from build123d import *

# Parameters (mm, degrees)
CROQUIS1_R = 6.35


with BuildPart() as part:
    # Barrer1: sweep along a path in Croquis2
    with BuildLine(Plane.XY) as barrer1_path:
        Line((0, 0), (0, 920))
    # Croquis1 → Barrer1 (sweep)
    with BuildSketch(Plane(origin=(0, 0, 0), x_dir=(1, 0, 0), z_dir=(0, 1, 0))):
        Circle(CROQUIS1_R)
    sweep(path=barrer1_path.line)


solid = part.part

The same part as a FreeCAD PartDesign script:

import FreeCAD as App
import Part
import Sketcher

V = App.Vector
Q = App.Units.Quantity

doc = App.newDocument("Part")
body = doc.addObject("PartDesign::Body", "Body")

# Sketch on XZ plane
sketch1 = body.newObject("Sketcher::SketchObject", "Sketch")
sketch1.AttachmentSupport = (doc.getObject("XZ_Plane"), [""])
sketch1.MapMode = "FlatFace"
sketch1.addGeometry(Part.Circle(V(0, 0, 0), V(0, 0, 1), 6), False)
sketch1.addConstraint([
    Sketcher.Constraint("Coincident", 0, 3, -1, 1),
    Sketcher.Constraint("Diameter", 0, Q("12.7 mm")),
])

# Sketch on XY plane
sketch2 = body.newObject("Sketcher::SketchObject", "Sketch001")
sketch2.AttachmentSupport = (doc.getObject("XY_Plane"), [""])
sketch2.MapMode = "FlatFace"
sketch2.addGeometry(Part.LineSegment(V(0, 0, 0), V(0, 920, 0)), False)
sketch2.addConstraint([
    Sketcher.Constraint("Vertical", 0),
    Sketcher.Constraint("Coincident", 0, 1, -1, 1),
    Sketcher.Constraint("DistanceY", 0, 1, 0, 2, Q("920 mm")),
])
doc.recompute()

additivepipe = body.newObject("PartDesign::AdditivePipe", "AdditivePipe")
additivepipe.Profile = sketch1
additivepipe.Spine = (sketch2, ["Edge1"])

doc.recompute()
